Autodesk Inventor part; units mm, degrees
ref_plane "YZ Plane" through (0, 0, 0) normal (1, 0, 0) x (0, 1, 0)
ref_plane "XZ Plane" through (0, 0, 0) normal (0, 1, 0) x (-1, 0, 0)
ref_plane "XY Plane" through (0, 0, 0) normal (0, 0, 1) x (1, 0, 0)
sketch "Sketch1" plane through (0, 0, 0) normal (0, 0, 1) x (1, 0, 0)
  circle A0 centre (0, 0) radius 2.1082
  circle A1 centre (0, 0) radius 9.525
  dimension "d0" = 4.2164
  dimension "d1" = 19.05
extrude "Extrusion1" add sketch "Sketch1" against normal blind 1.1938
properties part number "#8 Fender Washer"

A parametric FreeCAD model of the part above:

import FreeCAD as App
import Part
import Sketcher
from FreeCAD import Vector
Q = App.Units.Quantity

doc = App.newDocument("Part")
body = doc.addObject("PartDesign::Body", "Body")

# Sketch on XY plane
sketch1 = doc.addObject("Sketcher::SketchObject", "Sketch")
body.addObject(sketch1)
sketch1.AttachmentSupport = (doc.XY_Plane, [""])
sketch1.MapMode = "FlatFace"
sketch1.addGeometry([
    Part.Circle(Vector(0, 0, 0), Vector(0, 0, 1), 9.5),
    Part.Circle(Vector(0, 0, 0), Vector(0, 0, 1), 2.1),
], False)
sketch1.addConstraint([
    Sketcher.Constraint("Coincident", 0, 3, -1, 1),
    Sketcher.Constraint("Coincident", 1, 3, -1, 1),
    Sketcher.Constraint("Diameter", 0, Q("0.75 in")),
    Sketcher.Constraint("Diameter", 1, Q("0.166 in")),
])
pad1 = doc.addObject("PartDesign::Pad", "Pad")
body.addObject(pad1)
pad1.Profile = sketch1
pad1.Length = Q("0.047 in")
pad1.Reversed = True

doc.recompute()
